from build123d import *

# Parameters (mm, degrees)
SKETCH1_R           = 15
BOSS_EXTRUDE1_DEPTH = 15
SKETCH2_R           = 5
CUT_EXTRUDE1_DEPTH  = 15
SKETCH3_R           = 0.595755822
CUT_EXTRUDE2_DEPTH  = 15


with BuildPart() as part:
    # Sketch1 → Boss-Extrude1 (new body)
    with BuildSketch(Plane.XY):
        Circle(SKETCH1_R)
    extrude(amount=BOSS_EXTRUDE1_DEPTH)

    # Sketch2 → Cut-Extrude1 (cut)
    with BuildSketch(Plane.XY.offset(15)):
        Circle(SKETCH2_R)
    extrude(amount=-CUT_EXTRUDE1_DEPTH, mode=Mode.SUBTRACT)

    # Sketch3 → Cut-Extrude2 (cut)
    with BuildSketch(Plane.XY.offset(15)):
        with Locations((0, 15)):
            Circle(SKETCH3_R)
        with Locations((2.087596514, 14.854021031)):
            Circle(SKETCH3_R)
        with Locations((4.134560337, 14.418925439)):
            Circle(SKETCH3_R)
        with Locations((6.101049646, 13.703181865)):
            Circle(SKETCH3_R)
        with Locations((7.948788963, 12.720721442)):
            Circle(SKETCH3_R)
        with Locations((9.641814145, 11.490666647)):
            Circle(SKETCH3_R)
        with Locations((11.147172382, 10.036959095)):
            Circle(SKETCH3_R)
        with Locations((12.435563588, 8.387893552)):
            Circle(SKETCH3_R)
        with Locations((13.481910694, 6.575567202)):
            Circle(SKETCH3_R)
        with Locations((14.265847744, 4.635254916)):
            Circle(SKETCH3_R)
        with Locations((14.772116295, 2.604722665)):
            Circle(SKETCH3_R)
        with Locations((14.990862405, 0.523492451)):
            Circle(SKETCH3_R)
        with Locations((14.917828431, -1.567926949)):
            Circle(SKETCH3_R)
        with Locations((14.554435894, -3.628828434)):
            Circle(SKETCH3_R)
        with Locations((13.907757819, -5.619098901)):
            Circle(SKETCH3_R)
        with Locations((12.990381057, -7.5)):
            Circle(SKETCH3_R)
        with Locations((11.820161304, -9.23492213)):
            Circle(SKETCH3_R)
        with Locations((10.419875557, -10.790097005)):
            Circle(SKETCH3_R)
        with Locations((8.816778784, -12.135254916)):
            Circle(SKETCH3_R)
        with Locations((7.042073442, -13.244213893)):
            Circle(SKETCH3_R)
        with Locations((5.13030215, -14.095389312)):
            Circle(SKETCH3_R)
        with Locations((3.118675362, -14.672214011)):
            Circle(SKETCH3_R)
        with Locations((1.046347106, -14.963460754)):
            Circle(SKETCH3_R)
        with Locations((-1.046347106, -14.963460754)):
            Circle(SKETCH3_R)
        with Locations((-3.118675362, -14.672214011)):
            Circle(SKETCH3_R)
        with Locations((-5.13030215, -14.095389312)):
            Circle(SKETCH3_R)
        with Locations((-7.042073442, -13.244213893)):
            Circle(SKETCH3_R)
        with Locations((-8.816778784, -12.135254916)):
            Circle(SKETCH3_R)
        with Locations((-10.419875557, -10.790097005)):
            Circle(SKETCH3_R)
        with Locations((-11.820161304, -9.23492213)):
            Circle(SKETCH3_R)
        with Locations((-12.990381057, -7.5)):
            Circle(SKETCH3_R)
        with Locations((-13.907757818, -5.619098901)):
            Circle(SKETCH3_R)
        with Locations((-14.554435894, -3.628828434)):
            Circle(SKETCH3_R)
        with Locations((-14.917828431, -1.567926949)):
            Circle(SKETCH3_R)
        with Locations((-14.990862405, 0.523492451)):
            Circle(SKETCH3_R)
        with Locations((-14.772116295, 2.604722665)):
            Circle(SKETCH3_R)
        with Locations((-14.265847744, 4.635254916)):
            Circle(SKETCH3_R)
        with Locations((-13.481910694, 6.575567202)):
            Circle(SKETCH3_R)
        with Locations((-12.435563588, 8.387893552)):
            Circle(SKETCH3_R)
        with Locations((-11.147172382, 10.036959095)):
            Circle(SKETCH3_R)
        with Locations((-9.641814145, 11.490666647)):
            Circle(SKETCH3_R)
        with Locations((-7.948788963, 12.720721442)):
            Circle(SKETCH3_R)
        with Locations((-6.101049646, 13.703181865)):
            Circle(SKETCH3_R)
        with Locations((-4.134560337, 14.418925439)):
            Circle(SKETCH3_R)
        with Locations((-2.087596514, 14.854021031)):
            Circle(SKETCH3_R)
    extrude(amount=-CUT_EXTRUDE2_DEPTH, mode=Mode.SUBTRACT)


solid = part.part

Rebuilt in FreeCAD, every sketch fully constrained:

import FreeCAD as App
import Part
import Sketcher
from FreeCAD import Vector
Q = App.Units.Quantity

doc = App.newDocument("Part")
body = doc.addObject("PartDesign::Body", "Body")

sketch1 = body.newObject("Sketcher::SketchObject", "Sketch")
sketch1.AttachmentSupport = (doc.getObject("XY_Plane"), [""])
sketch1.MapMode = "FlatFace"
sketch1.addGeometry(Part.Circle(Vector(0, 0, 0), Vector(0, 0, 1), 15), False)
sketch1.addConstraint(Sketcher.Constraint("Coincident", 0, 3, -1, 1))
sketch1.addConstraint(Sketcher.Constraint("Diameter", 0, Q("30 mm")))
pad1 = body.newObject("PartDesign::Pad", "Pad")
pad1.Profile = sketch1
pad1.Length = 15

sketch2 = body.newObject("Sketcher::SketchObject", "Sketch001")
sketch2.AttachmentSupport = (doc.getObject("XY_Plane"), [""])
sketch2.MapMode = "FlatFace"
sketch2.AttachmentOffset = App.Placement(Vector(0, 0, 15), App.Rotation())
sketch2.addGeometry(Part.Circle(Vector(0, 0, 0), Vector(0, 0, 1), 5), False)
sketch2.addConstraint(Sketcher.Constraint("Coincident", 0, 3, -1, 1))
sketch2.addConstraint(Sketcher.Constraint("Diameter", 0, Q("10 mm")))
pocket1 = body.newObject("PartDesign::Pocket", "Pocket")
pocket1.Profile = sketch2
pocket1.Length = 15

sketch3 = body.newObject("Sketcher::SketchObject", "Sketch002")
sketch3.AttachmentSupport = (doc.getObject("XY_Plane"), [""])
sketch3.MapMode = "FlatFace"
sketch3.AttachmentOffset = App.Placement(Vector(0, 0, 15), App.Rotation())
sketch3.addGeometry(Part.Circle(Vector(0, 15, 0), Vector(0, 0, 1), 0.6), False)
sketch3.addGeometry(Part.Circle(Vector(2.1, 14.9, 0), Vector(0, 0, 1), 0.6), False)
sketch3.addGeometry(Part.Circle(Vector(4.1, 14.4, 0), Vector(0, 0, 1), 0.6), False)
sketch3.addGeometry(Part.Circle(Vector(6.1, 13.7, 0), Vector(0, 0, 1), 0.6), False)
sketch3.addGeometry(Part.Circle(Vector(7.9, 12.7, 0), Vector(0, 0, 1), 0.6), False)
sketch3.addGeometry(Part.Circle(Vector(9.6, 11.5, 0), Vector(0, 0, 1), 0.6), False)
sketch3.addGeometry(Part.Circle(Vector(11.1, 10, 0), Vector(0, 0, 1), 0.6), False)
sketch3.addGeometry(Part.Circle(Vector(12.4, 8.4, 0), Vector(0, 0, 1), 0.6), False)
sketch3.addGeometry(Part.Circle(Vector(13.5, 6.6, 0), Vector(0, 0, 1), 0.6), False)
sketch3.addGeometry(Part.Circle(Vector(14.3, 4.6, 0), Vector(0, 0, 1), 0.6), False)
sketch3.addGeometry(Part.Circle(Vector(14.8, 2.6, 0), Vector(0, 0, 1), 0.6), False)
sketch3.addGeometry(Part.Circle(Vector(15, 0.5, 0), Vector(0, 0, 1), 0.6), False)
sketch3.addGeometry(Part.Circle(Vector(14.9, -1.6, 0), Vector(0, 0, 1), 0.6), False)
sketch3.addGeometry(Part.Circle(Vector(14.6, -3.6, 0), Vector(0, 0, 1), 0.6), False)
sketch3.addGeometry(Part.Circle(Vector(13.9, -5.6, 0), Vector(0, 0, 1), 0.6), False)
sketch3.addGeometry(Part.Circle(Vector(13, -7.5, 0), Vector(0, 0, 1), 0.6), False)
sketch3.addGeometry(Part.Circle(Vector(11.8, -9.2, 0), Vector(0, 0, 1), 0.6), False)
sketch3.addGeometry(Part.Circle(Vector(10.4, -10.8, 0), Vector(0, 0, 1), 0.6), False)
sketch3.addGeometry(Part.Circle(Vector(8.8, -12.1, 0), Vector(0, 0, 1), 0.6), False)
sketch3.addGeometry(Part.Circle(Vector(7, -13.2, 0), Vector(0, 0, 1), 0.6), False)
sketch3.addGeometry(Part.Circle(Vector(5.1, -14.1, 0), Vector(0, 0, 1), 0.6), False)
sketch3.addGeometry(Part.Circle(Vector(3.1, -14.7, 0), Vector(0, 0, 1), 0.6), False)
sketch3.addGeometry(Part.Circle(Vector(1, -15, 0), Vector(0, 0, 1), 0.6), False)
sketch3.addGeometry(Part.Circle(Vector(-1, -15, 0), Vector(0, 0, 1), 0.6), False)
sketch3.addGeometry(Part.Circle(Vector(-3.1, -14.7, 0), Vector(0, 0, 1), 0.6), False)
sketch3.addGeometry(Part.Circle(Vector(-5.1, -14.1, 0), Vector(0, 0, 1), 0.6), False)
sketch3.addGeometry(Part.Circle(Vector(-7, -13.2, 0), Vector(0, 0, 1), 0.6), False)
sketch3.addGeometry(Part.Circle(Vector(-8.8, -12.1, 0), Vector(0, 0, 1), 0.6), False)
sketch3.addGeometry(Part.Circle(Vector(-10.4, -10.8, 0), Vector(0, 0, 1), 0.6), False)
sketch3.addGeometry(Part.Circle(Vector(-11.8, -9.2, 0), Vector(0, 0, 1), 0.6), False)
sketch3.addGeometry(Part.Circle(Vector(-13, -7.5, 0), Vector(0, 0, 1), 0.6), False)
sketch3.addGeometry(Part.Circle(Vector(-13.9, -5.6, 0), Vector(0, 0, 1), 0.6), False)
sketch3.addGeometry(Part.Circle(Vector(-14.6, -3.6, 0), Vector(0, 0, 1), 0.6), False)
sketch3.addGeometry(Part.Circle(Vector(-14.9, -1.6, 0), Vector(0, 0, 1), 0.6), False)
sketch3.addGeometry(Part.Circle(Vector(-15, 0.5, 0), Vector(0, 0, 1), 0.6), False)
sketch3.addGeometry(Part.Circle(Vector(-14.8, 2.6, 0), Vector(0, 0, 1), 0.6), False)
sketch3.addGeometry(Part.Circle(Vector(-14.3, 4.6, 0), Vector(0, 0, 1), 0.6), False)
sketch3.addGeometry(Part.Circle(Vector(-13.5, 6.6, 0), Vector(0, 0, 1), 0.6), False)
sketch3.addGeometry(Part.Circle(Vector(-12.4, 8.4, 0), Vector(0, 0, 1), 0.6), False)
sketch3.addGeometry(Part.Circle(Vector(-11.1, 10, 0), Vector(0, 0, 1), 0.6), False)
sketch3.addGeometry(Part.Circle(Vector(-9.6, 11.5, 0), Vector(0, 0, 1), 0.6), False)
sketch3.addGeometry(Part.Circle(Vector(-7.9, 12.7, 0), Vector(0, 0, 1), 0.6), False)
sketch3.addGeometry(Part.Circle(Vector(-6.1, 13.7, 0), Vector(0, 0, 1), 0.6), False)
sketch3.addGeometry(Part.Circle(Vector(-4.1, 14.4, 0), Vector(0, 0, 1), 0.6), False)
sketch3.addGeometry(Part.Circle(Vector(-2.1, 14.9, 0), Vector(0, 0, 1), 0.6), False)
sketch3.addConstraint(Sketcher.Constraint("Equal", 0, 1))
sketch3.addConstraint(Sketcher.Constraint("Equal", 1, 2))
sketch3.addConstraint(Sketcher.Constraint("Equal", 2, 3))
sketch3.addConstraint(Sketcher.Constraint("Equal", 3, 4))
sketch3.addConstraint(Sketcher.Constraint("Equal", 4, 5))
sketch3.addConstraint(Sketcher.Constraint("Equal", 5, 6))
sketch3.addConstraint(Sketcher.Constraint("Equal", 6, 7))
sketch3.addConstraint(Sketcher.Constraint("Equal", 7, 8))
sketch3.addConstraint(Sketcher.Constraint("Equal", 8, 9))
sketch3.addConstraint(Sketcher.Constraint("Equal", 9, 10))
sketch3.addConstraint(Sketcher.Constraint("Equal", 10, 11))
sketch3.addConstraint(Sketcher.Constraint("Equal", 11, 12))
sketch3.addConstraint(Sketcher.Constraint("Equal", 12, 13))
sketch3.addConstraint(Sketcher.Constraint("Equal", 13, 14))
sketch3.addConstraint(Sketcher.Constraint("Equal", 14, 15))
sketch3.addConstraint(Sketcher.Constraint("Equal", 15, 16))
sketch3.addConstraint(Sketcher.Constraint("Equal", 16, 17))
sketch3.addConstraint(Sketcher.Constraint("Equal", 17, 18))
sketch3.addConstraint(Sketcher.Constraint("Equal", 18, 19))
sketch3.addConstraint(Sketcher.Constraint("Equal", 19, 20))
sketch3.addConstraint(Sketcher.Constraint("Equal", 20, 21))
sketch3.addConstraint(Sketcher.Constraint("Equal", 21, 22))
sketch3.addConstraint(Sketcher.Constraint("Equal", 22, 23))
sketch3.addConstraint(Sketcher.Constraint("Equal", 23, 24))
sketch3.addConstraint(Sketcher.Constraint("Equal", 24, 25))
sketch3.addConstraint(Sketcher.Constraint("Equal", 25, 26))
sketch3.addConstraint(Sketcher.Constraint("Equal", 26, 27))
sketch3.addConstraint(Sketcher.Constraint("Equal", 27, 28))
sketch3.addConstraint(Sketcher.Constraint("Equal", 28, 29))
sketch3.addConstraint(Sketcher.Constraint("Equal", 29, 30))
sketch3.addConstraint(Sketcher.Constraint("Equal", 30, 31))
sketch3.addConstraint(Sketcher.Constraint("Equal", 31, 32))
sketch3.addConstraint(Sketcher.Constraint("Equal", 32, 33))
sketch3.addConstraint(Sketcher.Constraint("Equal", 33, 34))
sketch3.addConstraint(Sketcher.Constraint("Equal", 34, 35))
sketch3.addConstraint(Sketcher.Constraint("Equal", 35, 36))
sketch3.addConstraint(Sketcher.Constraint("Equal", 36, 37))
sketch3.addConstraint(Sketcher.Constraint("Equal", 37, 38))
sketch3.addConstraint(Sketcher.Constraint("Equal", 38, 39))
sketch3.addConstraint(Sketcher.Constraint("Equal", 39, 40))
sketch3.addConstraint(Sketcher.Constraint("Equal", 40, 41))
sketch3.addConstraint(Sketcher.Constraint("Equal", 41, 42))
sketch3.addConstraint(Sketcher.Constraint("Equal", 42, 43))
sketch3.addConstraint(Sketcher.Constraint("Equal", 43, 44))
sketch3.addConstraint(Sketcher.Constraint("Symmetric", 22, 3, 23, 3, -2))
sketch3.addConstraint(Sketcher.Constraint("Symmetric", 21, 3, 24, 3, -2))
sketch3.addConstraint(Sketcher.Constraint("Symmetric", 20, 3, 25, 3, -2))
sketch3.addConstraint(Sketcher.Constraint("Symmetric", 19, 3, 26, 3, -2))
sketch3.addConstraint(Sketcher.Constraint("Symmetric", 18, 3, 27, 3, -2))
sketch3.addConstraint(Sketcher.Constraint("Symmetric", 17, 3, 28, 3, -2))
sketch3.addConstraint(Sketcher.Constraint("Symmetric", 16, 3, 29, 3, -2))
sketch3.addConstraint(Sketcher.Constraint("Symmetric", 15, 3, 30, 3, -2))
sketch3.addConstraint(Sketcher.Constraint("Symmetric", 14, 3, 31, 3, -2))
sketch3.addConstraint(Sketcher.Constraint("Symmetric", 13, 3, 32, 3, -2))
sketch3.addConstraint(Sketcher.Constraint("Symmetric", 12, 3, 33, 3, -2))
sketch3.addConstraint(Sketcher.Constraint("Symmetric", 11, 3, 34, 3, -2))
sketch3.addConstraint(Sketcher.Constraint("Symmetric", 10, 3, 35, 3, -2))
sketch3.addConstraint(Sketcher.Constraint("Symmetric", 9, 3, 36, 3, -2))
sketch3.addConstraint(Sketcher.Constraint("Symmetric", 8, 3, 37, 3, -2))
sketch3.addConstraint(Sketcher.Constraint("Symmetric", 7, 3, 38, 3, -2))
sketch3.addConstraint(Sketcher.Constraint("Symmetric", 6, 3, 39, 3, -2))
sketch3.addConstraint(Sketcher.Constraint("Symmetric", 5, 3, 40, 3, -2))
sketch3.addConstraint(Sketcher.Constraint("Symmetric", 4, 3, 41, 3, -2))
sketch3.addConstraint(Sketcher.Constraint("Symmetric", 3, 3, 42, 3, -2))
sketch3.addConstraint(Sketcher.Constraint("Symmetric", 2, 3, 43, 3, -2))
sketch3.addConstraint(Sketcher.Constraint("Symmetric", 1, 3, 44, 3, -2))
sketch3.addConstraint(Sketcher.Constraint("PointOnObject", 0, 3, -2))
sketch3.addConstraint(Sketcher.Constraint("DistanceY", -1, 1, 0, 3, Q("15 mm")))
sketch3.addConstraint(Sketcher.Constraint("DistanceY", 15, 3, -1, 1, Q("7.5 mm")))
sketch3.addConstraint(Sketcher.Constraint("Diameter", 0, Q("1.191512 mm")))
sketch3.addConstraint(Sketcher.Constraint("DistanceY", 17, 3, 14, 3, Q("5.170998 mm")))
sketch3.addConstraint(Sketcher.Constraint("DistanceY", 21, 3, 19, 3, Q("1.428 mm")))
sketch3.addConstraint(Sketcher.Constraint("DistanceY", 14, 3, -1, 1, Q("5.619099 mm")))
sketch3.addConstraint(Sketcher.Constraint("DistanceY", 4, 3, 1, 3, Q("2.1333 mm")))
sketch3.addConstraint(Sketcher.Constraint("DistanceY", 8, 3, 5, 3, Q("4.915099 mm")))
sketch3.addConstraint(Sketcher.Constraint("DistanceX", 7, 3, 11, 3, Q("2.555299 mm")))
sketch3.addConstraint(Sketcher.Constraint("DistanceY", 11, 3, 7, 3, Q("7.864401 mm")))
sketch3.addConstraint(Sketcher.Constraint("DistanceY", 13, 3, 12, 3, Q("2.060901 mm")))
sketch3.addConstraint(Sketcher.Constraint("DistanceX", 16, 3, 11, 3, Q("3.170701 mm")))
sketch3.addConstraint(Sketcher.Constraint("DistanceX", 21, 3, 19, 3, Q("3.923398 mm")))
sketch3.addConstraint(Sketcher.Constraint("DistanceX", 21, 3, 17, 3, Q("7.3012 mm")))
sketch3.addConstraint(Sketcher.Constraint("DistanceY", -1, 1, 1, 3, Q("14.854021 mm")))
sketch3.addConstraint(Sketcher.Constraint("DistanceX", -1, 1, 2, 3, Q("4.13456 mm")))
sketch3.addConstraint(Sketcher.Constraint("DistanceX", -1, 1, 3, 3, Q("6.10105 mm")))
sketch3.addConstraint(Sketcher.Constraint("DistanceY", -1, 1, 3, 3, Q("13.703182 mm")))
sketch3.addConstraint(Sketcher.Constraint("DistanceX", -1, 1, 4, 3, Q("7.948789 mm")))
sketch3.addConstraint(Sketcher.Constraint("DistanceY", -1, 1, 6, 3, Q("10.036959 mm")))
sketch3.addConstraint(Sketcher.Constraint("DistanceX", -1, 1, 8, 3, Q("13.481911 mm")))
sketch3.addConstraint(Sketcher.Constraint("DistanceX", -1, 1, 12, 3, Q("14.917828 mm")))
sketch3.addConstraint(Sketcher.Constraint("DistanceY", 13, 3, -1, 1, Q("3.628828 mm")))
sketch3.addConstraint(Sketcher.Constraint("DistanceX", -1, 1, 15, 3, Q("12.990381 mm")))
sketch3.addConstraint(Sketcher.Constraint("DistanceX", -1, 1, 16, 3, Q("11.820161 mm")))
sketch3.addConstraint(Sketcher.Constraint("DistanceX", -1, 1, 18, 3, Q("8.816779 mm")))
sketch3.addConstraint(Sketcher.Constraint("DistanceY", 20, 3, -1, 1, Q("14.095389 mm")))
sketch3.addConstraint(Sketcher.Constraint("DistanceY", 22, 3, -1, 1, Q("14.963461 mm")))
sketch3.addConstraint(Sketcher.Constraint("DistanceY", 5, 3, 2, 3, Q("2.928259 mm")))
sketch3.addConstraint(Sketcher.Constraint("DistanceX", 5, 3, 6, 3, Q("1.505358 mm")))
sketch3.addConstraint(Sketcher.Constraint("DistanceX", 6, 3, 7, 3, Q("1.288391 mm")))
sketch3.addConstraint(Sketcher.Constraint("DistanceY", 7, 3, 3, 3, Q("5.315288 mm")))
sketch3.addConstraint(Sketcher.Constraint("DistanceY", 7, 3, 2, 3, Q("6.031032 mm")))
sketch3.addConstraint(Sketcher.Constraint("DistanceY", 9, 3, 7, 3, Q("3.752639 mm")))
sketch3.addConstraint(Sketcher.Constraint("DistanceX", 4, 3, 9, 3, Q("6.317059 mm")))
sketch3.addConstraint(Sketcher.Constraint("DistanceX", 9, 3, 10, 3, Q("0.506269 mm")))
sketch3.addConstraint(Sketcher.Constraint("DistanceY", 10, 3, 7, 3, Q("5.783171 mm")))
sketch3.addConstraint(Sketcher.Constraint("DistanceX", 13, 3, 10, 3, Q("0.21768 mm")))
sketch3.addConstraint(Sketcher.Constraint("DistanceX", 14, 3, 13, 3, Q("0.646678 mm")))
sketch3.addConstraint(Sketcher.Constraint("DistanceX", 17, 3, 13, 3, Q("4.13456 mm")))
sketch3.addConstraint(Sketcher.Constraint("DistanceY", 19, 3, 18, 3, Q("1.108959 mm")))
sketch3.addConstraint(Sketcher.Constraint("DistanceY", 19, 3, 16, 3, Q("4.009292 mm")))
sketch3.addConstraint(Sketcher.Constraint("DistanceX", 20, 3, 19, 3, Q("1.911771 mm")))
sketch3.addConstraint(Sketcher.Constraint("DistanceX", 22, 3, 21, 3, Q("2.072328 mm")))
sketch3.addConstraint(Sketcher.Constraint("DistanceX", -1, 1, 1, 3, Q("2.087597 mm")))
sketch3.addConstraint(Sketcher.Constraint("DistanceY", 16, 3, -1, 1, Q("9.234922 mm")))
pocket2 = body.newObject("PartDesign::Pocket", "Pocket001")
pocket2.Profile = sketch3
pocket2.Length = 15

doc.recompute()
